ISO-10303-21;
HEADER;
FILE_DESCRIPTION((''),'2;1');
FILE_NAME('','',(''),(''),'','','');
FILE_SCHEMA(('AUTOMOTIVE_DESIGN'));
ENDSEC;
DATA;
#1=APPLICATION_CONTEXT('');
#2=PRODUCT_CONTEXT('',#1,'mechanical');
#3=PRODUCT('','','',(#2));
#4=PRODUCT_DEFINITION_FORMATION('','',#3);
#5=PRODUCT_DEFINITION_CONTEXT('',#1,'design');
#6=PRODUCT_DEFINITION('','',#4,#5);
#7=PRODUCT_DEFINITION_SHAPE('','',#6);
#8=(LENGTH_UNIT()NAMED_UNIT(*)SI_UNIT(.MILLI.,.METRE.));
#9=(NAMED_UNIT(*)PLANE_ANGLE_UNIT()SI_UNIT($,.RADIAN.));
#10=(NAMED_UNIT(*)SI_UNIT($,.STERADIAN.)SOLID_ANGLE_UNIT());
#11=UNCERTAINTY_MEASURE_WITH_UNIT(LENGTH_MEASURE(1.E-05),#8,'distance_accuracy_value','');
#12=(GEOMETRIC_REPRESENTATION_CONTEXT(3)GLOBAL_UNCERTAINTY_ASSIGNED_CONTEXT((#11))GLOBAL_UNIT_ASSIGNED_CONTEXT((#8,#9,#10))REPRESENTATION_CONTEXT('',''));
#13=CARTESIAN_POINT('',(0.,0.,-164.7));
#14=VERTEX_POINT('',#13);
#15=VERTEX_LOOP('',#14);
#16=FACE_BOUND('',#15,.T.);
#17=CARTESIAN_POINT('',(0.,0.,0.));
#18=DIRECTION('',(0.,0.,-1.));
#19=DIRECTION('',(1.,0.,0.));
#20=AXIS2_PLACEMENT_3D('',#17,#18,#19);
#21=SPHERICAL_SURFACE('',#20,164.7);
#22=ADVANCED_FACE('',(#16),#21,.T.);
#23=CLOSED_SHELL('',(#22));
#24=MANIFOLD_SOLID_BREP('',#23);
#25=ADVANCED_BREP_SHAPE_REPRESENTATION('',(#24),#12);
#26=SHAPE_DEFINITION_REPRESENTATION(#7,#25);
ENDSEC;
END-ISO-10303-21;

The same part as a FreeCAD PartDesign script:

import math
import FreeCAD as App
import Part
import Sketcher

doc = App.newDocument("Part")
body = doc.addObject("PartDesign::Body", "Body")

sketch1 = doc.addObject("Sketcher::SketchObject", "Sketch")
body.addObject(sketch1)
sketch1.AttachmentSupport = (doc.XZ_Plane, [""])
sketch1.MapMode = "FlatFace"
sketch1.addGeometry([
    Part.LineSegment(App.Vector(0, -165, 0), App.Vector(0, 165, 0)),
    Part.ArcOfCircle(Part.Circle(App.Vector(0, 0, 0), App.Vector(0, 0, 1), 165), math.radians(-90), math.radians(90)),
], False)
sketch1.addConstraint([
    Sketcher.Constraint("Coincident", 0, 1, 1, 1),
    Sketcher.Constraint("Coincident", 1, 2, 0, 2),
    Sketcher.Constraint("Vertical", 0),
    Sketcher.Constraint("Coincident", 1, 3, -1, 1),
    Sketcher.Constraint("PointOnObject", 0, 1, -2),
    Sketcher.Constraint("Radius", 1, 164.7),
])
revolution = doc.addObject("PartDesign::Revolution", "Revolution")
body.addObject(revolution)
revolution.Profile = sketch1
revolution.ReferenceAxis = (sketch1, ["V_Axis"])
revolution.Angle = 360

doc.recompute()
